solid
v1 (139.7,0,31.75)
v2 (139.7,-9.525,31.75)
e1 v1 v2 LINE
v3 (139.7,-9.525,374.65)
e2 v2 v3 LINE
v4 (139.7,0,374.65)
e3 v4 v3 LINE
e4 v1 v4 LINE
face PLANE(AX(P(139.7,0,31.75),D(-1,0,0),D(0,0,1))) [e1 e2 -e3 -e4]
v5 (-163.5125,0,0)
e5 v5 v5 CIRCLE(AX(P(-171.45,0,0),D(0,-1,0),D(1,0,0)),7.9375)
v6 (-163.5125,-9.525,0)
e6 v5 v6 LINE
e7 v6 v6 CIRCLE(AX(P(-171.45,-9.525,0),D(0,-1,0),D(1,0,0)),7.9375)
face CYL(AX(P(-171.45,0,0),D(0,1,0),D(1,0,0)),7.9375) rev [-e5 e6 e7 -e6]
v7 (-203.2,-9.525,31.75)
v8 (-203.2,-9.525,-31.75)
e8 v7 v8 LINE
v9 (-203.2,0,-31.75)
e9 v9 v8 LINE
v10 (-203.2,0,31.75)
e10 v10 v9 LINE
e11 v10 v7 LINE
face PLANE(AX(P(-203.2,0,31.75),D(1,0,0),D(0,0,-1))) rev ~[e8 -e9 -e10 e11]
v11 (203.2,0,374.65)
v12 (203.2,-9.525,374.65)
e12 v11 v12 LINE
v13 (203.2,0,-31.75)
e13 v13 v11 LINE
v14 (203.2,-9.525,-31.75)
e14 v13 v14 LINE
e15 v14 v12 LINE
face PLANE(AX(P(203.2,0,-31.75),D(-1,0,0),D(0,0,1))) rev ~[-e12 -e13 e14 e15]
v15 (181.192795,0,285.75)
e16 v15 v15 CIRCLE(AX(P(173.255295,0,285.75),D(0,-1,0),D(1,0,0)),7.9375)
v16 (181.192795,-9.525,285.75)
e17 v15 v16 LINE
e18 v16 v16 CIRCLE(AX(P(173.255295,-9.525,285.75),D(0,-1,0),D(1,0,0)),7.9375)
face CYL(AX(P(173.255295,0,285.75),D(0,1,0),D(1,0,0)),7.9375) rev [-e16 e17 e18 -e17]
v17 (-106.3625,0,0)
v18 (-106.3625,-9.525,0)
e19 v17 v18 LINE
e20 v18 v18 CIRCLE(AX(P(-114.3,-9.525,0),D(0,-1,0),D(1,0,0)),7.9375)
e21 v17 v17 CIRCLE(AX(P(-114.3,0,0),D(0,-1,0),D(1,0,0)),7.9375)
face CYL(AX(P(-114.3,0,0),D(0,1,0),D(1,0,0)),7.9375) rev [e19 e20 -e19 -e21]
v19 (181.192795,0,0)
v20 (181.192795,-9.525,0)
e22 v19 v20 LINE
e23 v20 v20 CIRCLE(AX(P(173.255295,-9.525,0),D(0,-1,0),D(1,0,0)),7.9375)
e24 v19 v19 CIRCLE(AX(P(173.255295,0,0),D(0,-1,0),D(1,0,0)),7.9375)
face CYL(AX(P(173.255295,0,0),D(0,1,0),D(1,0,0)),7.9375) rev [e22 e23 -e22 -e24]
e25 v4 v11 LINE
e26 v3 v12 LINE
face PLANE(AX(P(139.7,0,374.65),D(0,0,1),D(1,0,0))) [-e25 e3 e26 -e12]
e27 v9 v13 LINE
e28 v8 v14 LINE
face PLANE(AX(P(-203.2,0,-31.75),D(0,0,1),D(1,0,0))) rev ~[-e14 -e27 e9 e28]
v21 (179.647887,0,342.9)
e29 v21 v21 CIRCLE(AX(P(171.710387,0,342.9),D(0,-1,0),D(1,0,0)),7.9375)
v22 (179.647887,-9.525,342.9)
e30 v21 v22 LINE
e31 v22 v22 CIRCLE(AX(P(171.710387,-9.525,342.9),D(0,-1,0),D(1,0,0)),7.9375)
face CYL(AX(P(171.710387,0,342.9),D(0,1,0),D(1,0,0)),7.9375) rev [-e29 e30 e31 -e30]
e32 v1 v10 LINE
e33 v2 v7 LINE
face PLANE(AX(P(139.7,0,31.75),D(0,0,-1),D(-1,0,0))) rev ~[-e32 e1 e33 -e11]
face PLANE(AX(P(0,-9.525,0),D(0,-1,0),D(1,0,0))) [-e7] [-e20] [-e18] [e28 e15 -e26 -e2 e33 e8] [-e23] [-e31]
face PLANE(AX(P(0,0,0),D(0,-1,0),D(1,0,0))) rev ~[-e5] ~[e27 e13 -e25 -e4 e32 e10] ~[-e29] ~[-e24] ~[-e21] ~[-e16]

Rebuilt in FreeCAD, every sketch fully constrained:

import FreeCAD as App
import Part
import Sketcher
Q = App.Units.Quantity


def add_polygon(sketch, points):
    """Adds a closed chain of lines whose ends are joined by coincident constraints."""
    first, n = sketch.GeometryCount, len(points)
    for a, b in zip(points, points[1:] + points[:1]):
        sketch.addGeometry(Part.LineSegment(App.Vector(*a, 0), App.Vector(*b, 0)), False)
    for i in range(n):
        sketch.addConstraint(Sketcher.Constraint("Coincident", first + i, 2, first + (i + 1) % n, 1))

doc = App.newDocument("Part")
body = doc.addObject("PartDesign::Body", "Body")

# Sketch on XZ plane
sketch1 = body.newObject("Sketcher::SketchObject", "Sketch")
sketch1.AttachmentSupport = (doc.getObject("XZ_Plane"), [""])
sketch1.MapMode = "FlatFace"
add_polygon(sketch1, [(-203, 32), (-203, -32), (203, -32), (203, 375), (140, 375), (140, 32)])  # lines 0-5
sketch1.addGeometry(Part.Circle(App.Vector(-171, 0, 0), App.Vector(0, 0, 1), 8), False)  # 6
sketch1.addGeometry(Part.Circle(App.Vector(-114, 0, 0), App.Vector(0, 0, 1), 8), False)  # 7
sketch1.addGeometry(Part.Circle(App.Vector(173, 0, 0), App.Vector(0, 0, 1), 8), False)  # 8
sketch1.addGeometry(Part.Circle(App.Vector(173, 286, 0), App.Vector(0, 0, 1), 8), False)  # 9
sketch1.addGeometry(Part.Circle(App.Vector(172, 343, 0), App.Vector(0, 0, 1), 8), False)  # 10
sketch1.addConstraint([
    Sketcher.Constraint("Vertical", 0),
    Sketcher.Constraint("Horizontal", 1),
    Sketcher.Constraint("Vertical", 2),
    Sketcher.Constraint("Horizontal", 3),
    Sketcher.Constraint("Vertical", 4),
    Sketcher.Constraint("Horizontal", 5),
    Sketcher.Constraint("Equal", 6, 7),
    Sketcher.Constraint("Equal", 7, 8),
    Sketcher.Constraint("Equal", 8, 9),
    Sketcher.Constraint("Equal", 9, 10),
    Sketcher.Constraint("Symmetric", 1, 2, 5, 2, -1, 1),
    Sketcher.Constraint("PointOnObject", 6, 3, -1),
    Sketcher.Constraint("PointOnObject", 7, 3, -1),
    Sketcher.Constraint("PointOnObject", 8, 3, -1),
    Sketcher.Constraint("Vertical", 8, 3, 9, 3),
    Sketcher.Constraint("Equal", 3, 0),
    Sketcher.Constraint("Equal", 1, 2),
    Sketcher.Constraint("DistanceX", 1, 1, 1, 2, Q("16 in")),
    Sketcher.Constraint("Diameter", 6, Q("0.625 in")),
    Sketcher.Constraint("DistanceX", 3, 2, 3, 1, Q("2.5 in")),
    Sketcher.Constraint("DistanceX", 7, 3, 4, 2, Q("10 in")),
    Sketcher.Constraint("DistanceY", 4, 2, 9, 3, Q("10 in")),
    Sketcher.Constraint("DistanceY", -1, 1, 10, 3, Q("13.5 in")),
    Sketcher.Constraint("DistanceX", 6, 3, -1, 1, Q("6.75 in")),
    Sketcher.Constraint("DistanceX", -1, 1, 8, 3, 173.255295),
    Sketcher.Constraint("DistanceX", -1, 1, 10, 3, 171.710387),
])
pad1 = body.newObject("PartDesign::Pad", "Pad")
pad1.Profile = sketch1
pad1.Length = Q("0.375 in")

doc.recompute()
